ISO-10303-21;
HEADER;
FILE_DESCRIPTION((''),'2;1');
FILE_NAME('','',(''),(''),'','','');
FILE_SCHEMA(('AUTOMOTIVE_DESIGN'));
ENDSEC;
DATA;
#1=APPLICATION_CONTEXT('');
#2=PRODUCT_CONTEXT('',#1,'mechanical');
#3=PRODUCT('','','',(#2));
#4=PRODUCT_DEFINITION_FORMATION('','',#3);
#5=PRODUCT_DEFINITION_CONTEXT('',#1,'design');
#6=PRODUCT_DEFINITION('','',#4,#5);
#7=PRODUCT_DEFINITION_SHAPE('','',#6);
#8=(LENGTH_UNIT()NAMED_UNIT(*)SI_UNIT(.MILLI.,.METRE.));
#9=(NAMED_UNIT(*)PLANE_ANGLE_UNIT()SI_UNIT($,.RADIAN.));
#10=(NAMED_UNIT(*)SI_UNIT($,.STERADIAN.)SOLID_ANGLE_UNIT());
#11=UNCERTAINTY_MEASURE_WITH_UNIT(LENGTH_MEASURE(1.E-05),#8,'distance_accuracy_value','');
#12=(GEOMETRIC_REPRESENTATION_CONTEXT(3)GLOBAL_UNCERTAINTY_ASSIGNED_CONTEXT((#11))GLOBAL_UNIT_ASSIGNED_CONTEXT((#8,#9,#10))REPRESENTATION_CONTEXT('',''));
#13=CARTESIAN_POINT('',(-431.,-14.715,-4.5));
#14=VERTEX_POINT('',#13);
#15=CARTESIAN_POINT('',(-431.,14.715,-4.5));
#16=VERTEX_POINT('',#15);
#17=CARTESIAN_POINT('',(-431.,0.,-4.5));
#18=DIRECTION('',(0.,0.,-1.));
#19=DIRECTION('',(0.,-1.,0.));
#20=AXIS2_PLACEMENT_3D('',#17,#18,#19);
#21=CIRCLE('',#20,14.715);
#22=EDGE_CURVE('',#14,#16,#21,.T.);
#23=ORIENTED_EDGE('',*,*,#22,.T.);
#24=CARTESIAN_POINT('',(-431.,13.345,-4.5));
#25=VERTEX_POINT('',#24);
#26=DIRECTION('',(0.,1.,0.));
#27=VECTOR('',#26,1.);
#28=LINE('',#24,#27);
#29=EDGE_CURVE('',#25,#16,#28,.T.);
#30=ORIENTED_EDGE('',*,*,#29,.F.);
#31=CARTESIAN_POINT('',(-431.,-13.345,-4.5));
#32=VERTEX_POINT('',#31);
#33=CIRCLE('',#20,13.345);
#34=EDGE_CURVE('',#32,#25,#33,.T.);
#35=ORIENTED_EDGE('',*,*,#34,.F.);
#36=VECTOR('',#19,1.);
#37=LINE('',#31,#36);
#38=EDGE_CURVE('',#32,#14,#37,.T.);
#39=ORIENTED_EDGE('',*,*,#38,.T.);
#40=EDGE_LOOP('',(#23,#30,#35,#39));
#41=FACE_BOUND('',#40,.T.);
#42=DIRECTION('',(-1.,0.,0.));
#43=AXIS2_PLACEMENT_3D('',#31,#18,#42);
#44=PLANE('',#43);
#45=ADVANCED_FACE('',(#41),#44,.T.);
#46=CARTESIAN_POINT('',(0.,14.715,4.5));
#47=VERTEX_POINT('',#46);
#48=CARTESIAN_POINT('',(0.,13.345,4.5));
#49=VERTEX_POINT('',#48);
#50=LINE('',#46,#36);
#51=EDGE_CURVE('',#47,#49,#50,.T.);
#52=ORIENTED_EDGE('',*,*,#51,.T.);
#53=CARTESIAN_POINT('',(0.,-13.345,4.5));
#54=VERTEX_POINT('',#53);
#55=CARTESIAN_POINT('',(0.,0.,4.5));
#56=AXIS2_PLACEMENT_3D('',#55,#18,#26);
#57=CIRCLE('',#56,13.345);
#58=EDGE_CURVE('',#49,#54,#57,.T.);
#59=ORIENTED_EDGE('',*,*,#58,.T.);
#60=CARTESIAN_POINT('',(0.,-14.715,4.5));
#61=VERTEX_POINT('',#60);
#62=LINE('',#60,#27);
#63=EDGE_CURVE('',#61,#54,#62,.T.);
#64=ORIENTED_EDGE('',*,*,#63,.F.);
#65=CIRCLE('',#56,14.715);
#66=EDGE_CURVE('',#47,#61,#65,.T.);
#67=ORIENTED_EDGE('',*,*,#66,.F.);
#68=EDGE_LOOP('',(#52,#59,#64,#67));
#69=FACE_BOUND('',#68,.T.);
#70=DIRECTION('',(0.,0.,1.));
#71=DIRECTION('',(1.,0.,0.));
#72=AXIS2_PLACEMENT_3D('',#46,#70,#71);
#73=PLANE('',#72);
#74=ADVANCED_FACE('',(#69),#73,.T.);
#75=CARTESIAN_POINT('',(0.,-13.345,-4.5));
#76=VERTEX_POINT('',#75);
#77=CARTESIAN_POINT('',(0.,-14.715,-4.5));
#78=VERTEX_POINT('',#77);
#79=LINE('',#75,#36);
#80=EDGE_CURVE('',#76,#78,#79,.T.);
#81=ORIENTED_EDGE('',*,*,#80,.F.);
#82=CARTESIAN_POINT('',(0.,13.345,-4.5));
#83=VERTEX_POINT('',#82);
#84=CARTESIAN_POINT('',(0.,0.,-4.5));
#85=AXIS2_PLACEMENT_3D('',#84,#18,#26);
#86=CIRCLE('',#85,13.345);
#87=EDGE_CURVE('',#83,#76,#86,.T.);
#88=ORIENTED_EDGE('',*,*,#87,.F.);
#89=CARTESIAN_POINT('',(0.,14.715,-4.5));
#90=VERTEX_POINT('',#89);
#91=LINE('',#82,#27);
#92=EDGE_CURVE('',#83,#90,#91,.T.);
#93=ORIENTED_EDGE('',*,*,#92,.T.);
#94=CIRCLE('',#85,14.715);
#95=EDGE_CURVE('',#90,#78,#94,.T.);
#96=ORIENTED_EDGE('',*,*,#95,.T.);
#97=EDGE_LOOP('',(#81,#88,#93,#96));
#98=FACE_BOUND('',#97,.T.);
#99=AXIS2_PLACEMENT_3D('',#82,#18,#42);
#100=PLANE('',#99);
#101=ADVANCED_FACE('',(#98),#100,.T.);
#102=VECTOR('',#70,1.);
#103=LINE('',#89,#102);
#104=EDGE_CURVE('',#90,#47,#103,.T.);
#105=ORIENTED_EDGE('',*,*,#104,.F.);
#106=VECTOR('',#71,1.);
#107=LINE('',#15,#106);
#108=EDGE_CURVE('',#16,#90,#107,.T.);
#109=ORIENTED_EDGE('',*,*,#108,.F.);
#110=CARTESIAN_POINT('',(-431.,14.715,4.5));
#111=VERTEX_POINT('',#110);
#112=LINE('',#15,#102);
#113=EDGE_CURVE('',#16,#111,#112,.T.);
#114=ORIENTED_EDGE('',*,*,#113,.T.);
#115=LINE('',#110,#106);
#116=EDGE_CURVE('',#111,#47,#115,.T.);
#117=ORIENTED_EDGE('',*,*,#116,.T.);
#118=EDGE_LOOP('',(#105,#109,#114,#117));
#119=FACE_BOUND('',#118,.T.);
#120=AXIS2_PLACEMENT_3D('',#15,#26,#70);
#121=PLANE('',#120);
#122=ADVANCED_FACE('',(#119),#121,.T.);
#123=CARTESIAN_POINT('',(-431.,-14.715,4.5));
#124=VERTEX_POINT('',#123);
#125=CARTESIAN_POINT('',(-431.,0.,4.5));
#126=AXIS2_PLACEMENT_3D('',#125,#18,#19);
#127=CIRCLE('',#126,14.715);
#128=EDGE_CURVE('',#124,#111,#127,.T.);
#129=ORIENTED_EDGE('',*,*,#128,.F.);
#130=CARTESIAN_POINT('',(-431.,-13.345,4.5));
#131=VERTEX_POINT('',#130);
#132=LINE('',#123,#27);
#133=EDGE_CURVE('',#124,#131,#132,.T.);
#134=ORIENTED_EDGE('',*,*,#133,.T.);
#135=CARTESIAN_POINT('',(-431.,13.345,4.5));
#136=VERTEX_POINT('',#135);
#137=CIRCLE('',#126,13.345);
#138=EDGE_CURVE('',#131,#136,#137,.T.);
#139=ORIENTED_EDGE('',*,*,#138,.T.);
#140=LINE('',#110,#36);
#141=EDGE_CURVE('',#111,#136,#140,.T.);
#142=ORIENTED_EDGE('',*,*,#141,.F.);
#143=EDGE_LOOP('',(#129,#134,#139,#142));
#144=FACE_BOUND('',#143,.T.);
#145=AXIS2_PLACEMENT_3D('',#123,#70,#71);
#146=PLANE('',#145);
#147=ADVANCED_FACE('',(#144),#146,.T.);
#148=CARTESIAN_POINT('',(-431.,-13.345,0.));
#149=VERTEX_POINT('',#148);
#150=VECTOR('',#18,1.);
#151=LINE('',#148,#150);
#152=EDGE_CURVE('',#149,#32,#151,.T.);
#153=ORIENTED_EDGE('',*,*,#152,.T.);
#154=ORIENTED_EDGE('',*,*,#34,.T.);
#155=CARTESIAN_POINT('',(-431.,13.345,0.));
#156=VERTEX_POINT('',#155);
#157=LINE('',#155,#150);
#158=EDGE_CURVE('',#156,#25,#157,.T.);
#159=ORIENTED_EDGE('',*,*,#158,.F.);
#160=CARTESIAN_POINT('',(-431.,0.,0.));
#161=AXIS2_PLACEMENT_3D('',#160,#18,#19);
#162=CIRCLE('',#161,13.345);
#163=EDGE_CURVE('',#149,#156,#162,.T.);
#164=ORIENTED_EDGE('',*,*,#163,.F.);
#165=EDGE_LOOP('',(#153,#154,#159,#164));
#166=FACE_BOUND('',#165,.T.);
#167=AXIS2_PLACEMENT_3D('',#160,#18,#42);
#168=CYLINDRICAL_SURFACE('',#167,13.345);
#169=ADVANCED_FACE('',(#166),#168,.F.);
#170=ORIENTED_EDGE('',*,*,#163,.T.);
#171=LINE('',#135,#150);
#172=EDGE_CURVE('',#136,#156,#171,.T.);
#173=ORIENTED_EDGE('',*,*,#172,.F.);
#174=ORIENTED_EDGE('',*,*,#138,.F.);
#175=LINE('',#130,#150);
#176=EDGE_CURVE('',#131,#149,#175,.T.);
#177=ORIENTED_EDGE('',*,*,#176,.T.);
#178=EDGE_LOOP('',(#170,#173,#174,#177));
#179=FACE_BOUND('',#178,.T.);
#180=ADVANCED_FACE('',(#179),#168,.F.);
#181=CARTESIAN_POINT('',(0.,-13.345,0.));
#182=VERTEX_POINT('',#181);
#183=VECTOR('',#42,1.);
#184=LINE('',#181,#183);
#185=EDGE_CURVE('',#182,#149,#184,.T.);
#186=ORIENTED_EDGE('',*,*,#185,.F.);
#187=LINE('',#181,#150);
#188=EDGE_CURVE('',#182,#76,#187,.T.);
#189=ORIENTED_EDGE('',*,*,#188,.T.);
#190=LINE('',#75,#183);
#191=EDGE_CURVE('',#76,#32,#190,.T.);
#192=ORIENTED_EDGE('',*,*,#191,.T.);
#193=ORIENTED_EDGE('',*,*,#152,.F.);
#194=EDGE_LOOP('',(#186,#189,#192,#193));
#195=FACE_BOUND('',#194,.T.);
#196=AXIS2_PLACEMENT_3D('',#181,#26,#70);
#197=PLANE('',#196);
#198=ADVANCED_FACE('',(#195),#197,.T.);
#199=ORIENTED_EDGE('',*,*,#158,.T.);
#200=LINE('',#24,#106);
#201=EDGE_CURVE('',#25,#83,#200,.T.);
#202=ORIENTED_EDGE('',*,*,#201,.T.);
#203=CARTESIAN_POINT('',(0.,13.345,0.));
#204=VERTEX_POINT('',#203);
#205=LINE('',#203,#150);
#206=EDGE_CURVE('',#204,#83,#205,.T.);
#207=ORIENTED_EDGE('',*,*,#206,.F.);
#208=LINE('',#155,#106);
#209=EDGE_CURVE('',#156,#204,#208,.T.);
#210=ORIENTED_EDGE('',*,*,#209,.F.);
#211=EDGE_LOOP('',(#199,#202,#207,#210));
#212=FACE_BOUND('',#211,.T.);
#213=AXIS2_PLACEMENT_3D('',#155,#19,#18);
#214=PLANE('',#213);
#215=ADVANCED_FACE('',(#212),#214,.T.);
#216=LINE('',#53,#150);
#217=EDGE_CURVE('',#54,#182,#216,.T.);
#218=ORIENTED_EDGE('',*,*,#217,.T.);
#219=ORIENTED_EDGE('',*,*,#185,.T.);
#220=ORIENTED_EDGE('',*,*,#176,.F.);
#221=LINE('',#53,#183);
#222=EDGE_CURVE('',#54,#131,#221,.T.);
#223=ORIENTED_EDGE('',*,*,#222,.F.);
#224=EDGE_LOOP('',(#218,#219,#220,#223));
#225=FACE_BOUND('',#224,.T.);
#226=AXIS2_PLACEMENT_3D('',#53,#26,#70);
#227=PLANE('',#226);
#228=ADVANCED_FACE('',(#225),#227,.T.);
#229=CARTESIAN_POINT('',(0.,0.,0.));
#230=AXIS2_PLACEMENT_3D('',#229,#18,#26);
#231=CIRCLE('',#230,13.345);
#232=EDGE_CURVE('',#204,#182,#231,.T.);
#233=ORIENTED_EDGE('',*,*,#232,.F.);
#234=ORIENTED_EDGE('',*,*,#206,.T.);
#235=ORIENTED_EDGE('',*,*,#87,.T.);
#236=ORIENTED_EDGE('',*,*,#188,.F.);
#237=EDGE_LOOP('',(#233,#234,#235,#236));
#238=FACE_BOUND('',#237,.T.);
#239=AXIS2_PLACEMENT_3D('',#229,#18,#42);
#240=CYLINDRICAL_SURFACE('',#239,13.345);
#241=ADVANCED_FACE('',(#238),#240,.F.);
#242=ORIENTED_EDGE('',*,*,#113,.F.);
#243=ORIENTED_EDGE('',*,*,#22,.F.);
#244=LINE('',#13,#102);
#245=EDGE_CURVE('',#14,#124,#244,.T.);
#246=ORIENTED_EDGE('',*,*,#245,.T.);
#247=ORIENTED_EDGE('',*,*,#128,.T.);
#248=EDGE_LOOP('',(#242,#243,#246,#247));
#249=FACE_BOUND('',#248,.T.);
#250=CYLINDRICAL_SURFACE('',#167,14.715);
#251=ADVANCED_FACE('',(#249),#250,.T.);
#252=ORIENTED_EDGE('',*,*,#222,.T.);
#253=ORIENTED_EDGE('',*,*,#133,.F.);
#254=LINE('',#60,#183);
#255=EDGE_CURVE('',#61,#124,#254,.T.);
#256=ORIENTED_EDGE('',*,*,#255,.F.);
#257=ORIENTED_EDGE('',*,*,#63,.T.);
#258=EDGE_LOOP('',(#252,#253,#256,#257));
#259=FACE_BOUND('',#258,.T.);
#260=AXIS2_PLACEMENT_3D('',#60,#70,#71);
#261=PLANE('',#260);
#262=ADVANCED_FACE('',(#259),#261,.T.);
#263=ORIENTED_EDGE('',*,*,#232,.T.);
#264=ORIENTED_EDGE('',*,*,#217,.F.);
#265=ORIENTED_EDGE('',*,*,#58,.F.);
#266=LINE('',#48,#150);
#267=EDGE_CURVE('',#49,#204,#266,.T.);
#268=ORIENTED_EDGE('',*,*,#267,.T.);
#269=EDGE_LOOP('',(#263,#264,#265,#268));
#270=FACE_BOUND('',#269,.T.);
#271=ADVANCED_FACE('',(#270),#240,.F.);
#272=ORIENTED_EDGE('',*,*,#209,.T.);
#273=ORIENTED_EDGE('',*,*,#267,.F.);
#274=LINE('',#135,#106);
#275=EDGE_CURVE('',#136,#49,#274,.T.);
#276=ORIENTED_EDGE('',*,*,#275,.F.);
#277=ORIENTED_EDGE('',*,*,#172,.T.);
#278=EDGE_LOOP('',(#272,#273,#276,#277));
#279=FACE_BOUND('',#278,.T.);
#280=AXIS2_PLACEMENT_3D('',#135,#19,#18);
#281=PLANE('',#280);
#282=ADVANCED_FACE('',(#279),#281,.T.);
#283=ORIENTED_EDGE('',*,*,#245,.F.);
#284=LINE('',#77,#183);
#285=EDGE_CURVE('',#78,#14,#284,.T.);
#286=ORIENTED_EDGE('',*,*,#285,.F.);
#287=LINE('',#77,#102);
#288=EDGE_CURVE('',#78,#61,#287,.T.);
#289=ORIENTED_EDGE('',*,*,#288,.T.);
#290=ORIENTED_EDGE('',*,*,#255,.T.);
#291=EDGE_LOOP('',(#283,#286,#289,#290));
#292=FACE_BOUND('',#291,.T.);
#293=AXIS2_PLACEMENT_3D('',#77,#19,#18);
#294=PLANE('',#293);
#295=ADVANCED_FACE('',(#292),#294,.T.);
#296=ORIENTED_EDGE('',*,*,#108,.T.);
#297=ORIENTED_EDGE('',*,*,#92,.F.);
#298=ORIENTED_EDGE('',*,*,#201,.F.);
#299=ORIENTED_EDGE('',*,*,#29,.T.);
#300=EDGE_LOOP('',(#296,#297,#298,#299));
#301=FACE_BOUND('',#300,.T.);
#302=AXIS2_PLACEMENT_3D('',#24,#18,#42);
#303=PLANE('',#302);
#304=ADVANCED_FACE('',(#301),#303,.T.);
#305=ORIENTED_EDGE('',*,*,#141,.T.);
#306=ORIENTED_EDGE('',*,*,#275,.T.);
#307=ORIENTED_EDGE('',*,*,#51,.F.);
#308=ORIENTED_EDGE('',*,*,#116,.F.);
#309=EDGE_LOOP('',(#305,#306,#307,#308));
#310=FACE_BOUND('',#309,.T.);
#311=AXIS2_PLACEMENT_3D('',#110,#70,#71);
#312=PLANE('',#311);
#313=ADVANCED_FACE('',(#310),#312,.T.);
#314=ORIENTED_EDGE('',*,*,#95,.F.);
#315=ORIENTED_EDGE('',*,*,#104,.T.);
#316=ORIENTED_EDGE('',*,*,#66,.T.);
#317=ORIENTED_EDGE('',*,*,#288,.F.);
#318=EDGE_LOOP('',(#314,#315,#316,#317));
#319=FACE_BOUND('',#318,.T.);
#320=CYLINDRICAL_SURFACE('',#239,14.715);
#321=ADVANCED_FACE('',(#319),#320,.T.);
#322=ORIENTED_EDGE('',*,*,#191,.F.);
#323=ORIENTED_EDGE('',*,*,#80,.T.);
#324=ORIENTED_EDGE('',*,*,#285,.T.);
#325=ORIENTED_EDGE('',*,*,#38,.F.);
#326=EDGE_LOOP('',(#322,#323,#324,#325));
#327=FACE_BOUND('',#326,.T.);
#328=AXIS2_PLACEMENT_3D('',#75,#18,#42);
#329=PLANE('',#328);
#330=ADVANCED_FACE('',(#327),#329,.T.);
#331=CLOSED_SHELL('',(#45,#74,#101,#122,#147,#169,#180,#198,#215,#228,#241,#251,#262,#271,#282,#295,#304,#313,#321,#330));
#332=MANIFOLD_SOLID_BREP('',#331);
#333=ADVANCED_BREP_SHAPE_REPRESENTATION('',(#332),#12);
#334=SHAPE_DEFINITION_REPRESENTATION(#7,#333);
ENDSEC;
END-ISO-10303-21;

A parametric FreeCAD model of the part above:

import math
import FreeCAD as App
import Part
import Sketcher
from FreeCAD import Vector

doc = App.newDocument("Part")
params = doc.addObject("Spreadsheet::Sheet", "Params")
for row, (alias, value) in enumerate([
    ("sketch1_height", "9 mm"),
    ("sketch1_width", "1.37 mm"),
    ("sketch2_width", "431 mm"),
], start=1):
    params.set(f"A{row}", alias)
    params.set(f"B{row}", "=" + value)
    params.setAlias(f"B{row}", alias)

body = doc.addObject("PartDesign::Body", "Body")

sketch1 = body.newObject("Sketcher::SketchObject", "Sketch")
sketch1.AttachmentSupport = (doc.getObject("YZ_Plane"), [""])
sketch1.MapMode = "FlatFace"
sketch1.addGeometry(Part.LineSegment(Vector(13.3, -4.5, 0), Vector(14.7, -4.5, 0)), False)
sketch1.addGeometry(Part.LineSegment(Vector(14.7, -4.5, 0), Vector(14.7, 4.5, 0)), False)
sketch1.addGeometry(Part.LineSegment(Vector(14.7, 4.5, 0), Vector(13.3, 4.5, 0)), False)
sketch1.addGeometry(Part.LineSegment(Vector(13.3, 4.5, 0), Vector(13.3, -4.5, 0)), False)
sketch1.addConstraint(Sketcher.Constraint("Coincident", 0, 2, 1, 1))
sketch1.addConstraint(Sketcher.Constraint("Coincident", 1, 2, 2, 1))
sketch1.addConstraint(Sketcher.Constraint("Coincident", 2, 2, 3, 1))
sketch1.addConstraint(Sketcher.Constraint("Coincident", 3, 2, 0, 1))
sketch1.addConstraint(Sketcher.Constraint("Horizontal", 0))
sketch1.addConstraint(Sketcher.Constraint("Vertical", 1))
sketch1.addConstraint(Sketcher.Constraint("Horizontal", 2))
sketch1.addConstraint(Sketcher.Constraint("Vertical", 3))
sketch1.addConstraint(Sketcher.Constraint("DistanceY", 1, 1, 1, 2, 9.0))
sketch1.addConstraint(Sketcher.Constraint("DistanceX", 0, 1, 0, 2, 1.37))
sketch1.addConstraint(Sketcher.Constraint("DistanceY", 0, 2, -1, 1, 4.5))
sketch1.addConstraint(Sketcher.Constraint("DistanceX", -1, 1, 0, 2, 14.715))
sketch1.setExpression("Constraints[8]", "Params.sketch1_height")
sketch1.setExpression("Constraints[9]", "Params.sketch1_width")

sketch2 = body.newObject("Sketcher::SketchObject", "Sketch001")
sketch2.AttachmentSupport = (doc.getObject("XY_Plane"), [""])
sketch2.MapMode = "FlatFace"
sketch2.addGeometry(Part.LineSegment(Vector(0, -13, 0), Vector(-431, -13, 0)), False)
sketch2.addGeometry(Part.ArcOfCircle(Part.Circle(Vector(-431, 0, 0), Vector(0, 0, 1), 13), math.radians(90), math.radians(270)), False)
sketch2.addGeometry(Part.LineSegment(Vector(-431, 13, 0), Vector(0, 13, 0)), False)
sketch2.addGeometry(Part.ArcOfCircle(Part.Circle(Vector(0, 0, 0), Vector(0, 0, 1), 13), math.radians(-90), math.radians(90)), False)
sketch2.addConstraint(Sketcher.Constraint("Tangent", 0, 2, 1, 2))
sketch2.addConstraint(Sketcher.Constraint("Tangent", 1, 1, 2, 1))
sketch2.addConstraint(Sketcher.Constraint("Tangent", 2, 2, 3, 2))
sketch2.addConstraint(Sketcher.Constraint("Tangent", 3, 1, 0, 1))
sketch2.addConstraint(Sketcher.Constraint("Horizontal", 0))
sketch2.addConstraint(Sketcher.Constraint("Horizontal", 2))
sketch2.addConstraint(Sketcher.Constraint("Coincident", 3, 3, -1, 1))
sketch2.addConstraint(Sketcher.Constraint("DistanceX", 0, 2, 0, 1, 431.0))
sketch2.addConstraint(Sketcher.Constraint("Radius", 1, 13.345))
sketch2.setExpression("Constraints[7]", "Params.sketch2_width")
doc.recompute()

additivepipe = body.newObject("PartDesign::AdditivePipe", "AdditivePipe")
additivepipe.Profile = sketch1
additivepipe.Spine = (sketch2, ["Edge1", "Edge2", "Edge3", "Edge4"])

doc.recompute()
